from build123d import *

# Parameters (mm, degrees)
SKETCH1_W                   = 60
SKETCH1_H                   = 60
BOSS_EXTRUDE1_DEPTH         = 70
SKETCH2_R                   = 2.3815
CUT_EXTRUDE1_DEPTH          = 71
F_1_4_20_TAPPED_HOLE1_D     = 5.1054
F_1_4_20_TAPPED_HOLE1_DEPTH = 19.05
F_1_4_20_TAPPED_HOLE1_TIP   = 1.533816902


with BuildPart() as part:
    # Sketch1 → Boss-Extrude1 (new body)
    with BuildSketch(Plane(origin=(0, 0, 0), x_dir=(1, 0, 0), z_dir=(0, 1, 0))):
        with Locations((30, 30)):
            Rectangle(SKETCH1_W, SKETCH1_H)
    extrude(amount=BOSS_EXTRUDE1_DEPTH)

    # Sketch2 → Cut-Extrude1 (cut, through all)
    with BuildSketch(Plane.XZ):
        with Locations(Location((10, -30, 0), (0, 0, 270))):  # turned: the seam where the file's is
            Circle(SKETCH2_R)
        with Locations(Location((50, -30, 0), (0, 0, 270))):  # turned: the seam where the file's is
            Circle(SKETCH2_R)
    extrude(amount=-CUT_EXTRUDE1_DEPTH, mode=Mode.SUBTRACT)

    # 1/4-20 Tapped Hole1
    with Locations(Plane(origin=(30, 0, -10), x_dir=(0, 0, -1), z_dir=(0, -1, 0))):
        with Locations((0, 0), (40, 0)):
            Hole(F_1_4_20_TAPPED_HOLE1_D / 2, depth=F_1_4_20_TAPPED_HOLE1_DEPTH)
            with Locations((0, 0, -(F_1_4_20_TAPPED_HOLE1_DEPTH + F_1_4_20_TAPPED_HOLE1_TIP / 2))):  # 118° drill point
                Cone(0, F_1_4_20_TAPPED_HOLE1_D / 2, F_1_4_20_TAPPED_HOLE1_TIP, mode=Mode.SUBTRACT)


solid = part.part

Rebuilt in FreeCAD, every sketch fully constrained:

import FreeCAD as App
import Part
import Sketcher
from FreeCAD import Vector

doc = App.newDocument("Part")
body = doc.addObject("PartDesign::Body", "Body")

sketch1 = doc.addObject("Sketcher::SketchObject", "Sketch")
body.addObject(sketch1)
sketch1.AttachmentSupport = (doc.XZ_Plane, [""])
sketch1.MapMode = "FlatFace"
sketch1.addGeometry(Part.LineSegment(Vector(0, -60, 0), Vector(0, 0, 0)), False)
sketch1.addGeometry(Part.LineSegment(Vector(0, 0, 0), Vector(60, 0, 0)), False)
sketch1.addGeometry(Part.LineSegment(Vector(60, 0, 0), Vector(60, -60, 0)), False)
sketch1.addGeometry(Part.LineSegment(Vector(60, -60, 0), Vector(0, -60, 0)), False)
sketch1.addConstraint(Sketcher.Constraint("Coincident", 0, 2, 1, 1))
sketch1.addConstraint(Sketcher.Constraint("Coincident", 1, 2, 2, 1))
sketch1.addConstraint(Sketcher.Constraint("Coincident", 2, 2, 3, 1))
sketch1.addConstraint(Sketcher.Constraint("Coincident", 3, 2, 0, 1))
sketch1.addConstraint(Sketcher.Constraint("Vertical", 0))
sketch1.addConstraint(Sketcher.Constraint("Horizontal", 1))
sketch1.addConstraint(Sketcher.Constraint("Vertical", 2))
sketch1.addConstraint(Sketcher.Constraint("Horizontal", 3))
sketch1.addConstraint(Sketcher.Constraint("Coincident", 0, 2, -1, 1))
sketch1.addConstraint(Sketcher.Constraint("Equal", 3, 0))
sketch1.addConstraint(Sketcher.Constraint("DistanceX", 1, 1, 1, 2, 60.0))
pad1 = doc.addObject("PartDesign::Pad", "Pad")
body.addObject(pad1)
pad1.Profile = sketch1
pad1.Length = 70
pad1.Reversed = True

sketch2 = doc.addObject("Sketcher::SketchObject", "Sketch001")
body.addObject(sketch2)
sketch2.AttachmentSupport = (doc.XZ_Plane, [""])
sketch2.MapMode = "FlatFace"
sketch2.addGeometry(Part.Circle(Vector(10, -30, 0), Vector(0, 0, 1), 2.3815), False)
sketch2.addGeometry(Part.Circle(Vector(50, -30, 0), Vector(0, 0, 1), 2.3815), False)
sketch2.addConstraint(Sketcher.Constraint("Equal", 0, 1))
sketch2.addConstraint(Sketcher.Constraint("Horizontal", 0, 3, 1, 3))
sketch2.addConstraint(Sketcher.Constraint("Diameter", 0, 4.763))
sketch2.addConstraint(Sketcher.Constraint("DistanceX", -1, 1, 0, 3, 10.0))
sketch2.addConstraint(Sketcher.Constraint("DistanceY", 0, 3, -1, 1, 30.0))
sketch2.addConstraint(Sketcher.Constraint("DistanceX", -1, 1, 1, 3, 50.0))
pocket1 = doc.addObject("PartDesign::Pocket", "Pocket")
body.addObject(pocket1)
pocket1.Profile = sketch2
pocket1.Type = "ThroughAll"

sketch3 = doc.addObject("Sketcher::SketchObject", "Sketch002")
body.addObject(sketch3)
sketch3.AttachmentSupport = (doc.XZ_Plane, [""])
sketch3.MapMode = "FlatFace"
sketch3.addGeometry(Part.Circle(Vector(30, -10, 0), Vector(0, 0, 1), 2.5527), False)
sketch3.addGeometry(Part.Circle(Vector(30, -50, 0), Vector(0, 0, 1), 2.5527), False)
sketch3.addConstraint(Sketcher.Constraint("Equal", 0, 1))
sketch3.addConstraint(Sketcher.Constraint("Vertical", 0, 3, 1, 3))
sketch3.addConstraint(Sketcher.Constraint("DistanceX", -1, 1, 0, 3, 30.0))
sketch3.addConstraint(Sketcher.Constraint("DistanceY", 0, 3, -1, 1, 10.0))
sketch3.addConstraint(Sketcher.Constraint("DistanceY", 1, 3, -1, 1, 50.0))
sketch3.addConstraint(Sketcher.Constraint("Diameter", 0, 5.1054))
doc.recompute()
hole = doc.addObject("PartDesign::Hole", "Hole")
body.addObject(hole)
hole.Profile = sketch3
hole.ThreadType = "None"
hole.Diameter = 5.1054
hole.DepthType = "Dimension"
hole.Depth = 19.05
hole.DrillPoint = "Angled"
hole.DrillPointAngle = 118

doc.recompute()
